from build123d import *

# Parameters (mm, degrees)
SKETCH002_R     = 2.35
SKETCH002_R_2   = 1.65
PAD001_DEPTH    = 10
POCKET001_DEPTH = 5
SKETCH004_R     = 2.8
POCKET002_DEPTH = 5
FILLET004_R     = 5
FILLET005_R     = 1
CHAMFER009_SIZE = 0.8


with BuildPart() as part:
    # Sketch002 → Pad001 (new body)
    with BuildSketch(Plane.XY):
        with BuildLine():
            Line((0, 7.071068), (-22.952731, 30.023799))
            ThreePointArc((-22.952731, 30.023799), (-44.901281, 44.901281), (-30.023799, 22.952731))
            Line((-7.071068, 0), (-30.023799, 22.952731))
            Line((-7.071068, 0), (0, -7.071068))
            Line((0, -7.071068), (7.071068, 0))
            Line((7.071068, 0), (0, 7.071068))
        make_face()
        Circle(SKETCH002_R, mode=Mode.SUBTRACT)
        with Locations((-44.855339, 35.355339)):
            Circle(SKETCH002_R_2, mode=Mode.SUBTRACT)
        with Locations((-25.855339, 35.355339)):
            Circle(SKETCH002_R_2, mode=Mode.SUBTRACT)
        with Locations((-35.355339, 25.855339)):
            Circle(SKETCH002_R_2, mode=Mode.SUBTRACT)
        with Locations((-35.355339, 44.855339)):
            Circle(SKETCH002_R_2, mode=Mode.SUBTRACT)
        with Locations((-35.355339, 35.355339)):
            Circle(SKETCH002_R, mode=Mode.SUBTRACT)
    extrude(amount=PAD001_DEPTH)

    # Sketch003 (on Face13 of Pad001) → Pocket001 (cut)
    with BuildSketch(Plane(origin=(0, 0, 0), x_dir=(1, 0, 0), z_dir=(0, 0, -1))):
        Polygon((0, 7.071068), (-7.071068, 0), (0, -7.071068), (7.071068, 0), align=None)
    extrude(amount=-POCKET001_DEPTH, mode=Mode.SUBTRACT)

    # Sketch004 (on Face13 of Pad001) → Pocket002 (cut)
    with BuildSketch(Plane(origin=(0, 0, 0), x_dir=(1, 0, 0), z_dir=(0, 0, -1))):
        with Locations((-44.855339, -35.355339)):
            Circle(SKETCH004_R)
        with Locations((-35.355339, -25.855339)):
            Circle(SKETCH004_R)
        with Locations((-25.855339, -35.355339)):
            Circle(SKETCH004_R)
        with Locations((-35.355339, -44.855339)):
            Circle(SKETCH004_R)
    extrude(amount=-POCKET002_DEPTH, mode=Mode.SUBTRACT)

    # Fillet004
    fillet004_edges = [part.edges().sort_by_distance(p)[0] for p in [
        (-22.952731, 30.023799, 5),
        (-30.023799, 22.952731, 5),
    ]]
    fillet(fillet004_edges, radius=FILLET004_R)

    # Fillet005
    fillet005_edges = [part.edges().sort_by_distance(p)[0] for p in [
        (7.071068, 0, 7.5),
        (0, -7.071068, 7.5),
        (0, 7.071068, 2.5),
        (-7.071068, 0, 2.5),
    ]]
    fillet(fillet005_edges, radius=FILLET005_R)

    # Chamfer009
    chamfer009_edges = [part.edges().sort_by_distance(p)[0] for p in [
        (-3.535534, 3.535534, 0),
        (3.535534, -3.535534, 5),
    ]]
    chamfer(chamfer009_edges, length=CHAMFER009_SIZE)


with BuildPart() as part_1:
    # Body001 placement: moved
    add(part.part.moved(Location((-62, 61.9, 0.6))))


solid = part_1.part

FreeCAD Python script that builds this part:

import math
import FreeCAD as App
import Part
import Sketcher

V = App.Vector
Q = App.Units.Quantity


def edges_at(feature, points):
    """Names of the edges that pass closest to the given points."""
    edges = feature.Shape.Edges
    near = lambda p: min(range(len(edges)), key=lambda i: edges[i].distToShape(Part.Vertex(*p))[0])
    return sorted({f"Edge{near(p) + 1}" for p in points})


def add_polygon(sketch, points):
    """Adds a closed chain of lines whose ends are joined by coincident constraints."""
    first, n = sketch.GeometryCount, len(points)
    for a, b in zip(points, points[1:] + points[:1]):
        sketch.addGeometry(Part.LineSegment(App.Vector(*a, 0), App.Vector(*b, 0)), False)
    for i in range(n):
        sketch.addConstraint(Sketcher.Constraint("Coincident", first + i, 2, first + (i + 1) % n, 1))

doc = App.newDocument("Part")
params = doc.addObject("Spreadsheet::Sheet", "Params")
for row, (alias, value) in enumerate([
    ("sketch1_diameter", "4.7 mm"),
    ("sketch1_diameter2", "3.3 mm"),
    ("sketch1_radius", "13.5 mm"),
    ("sketch1_length", "10 mm"),
    ("pad1_length", "10 mm"),
    ("sketch2_length", "10 mm"),
    ("pocket1_length", "5 mm"),
    ("sketch3_diameter", "5.6 mm"),
    ("pocket2_length", "5 mm"),
    ("fillet_radius", "5 mm"),
    ("fillet2_radius", "1 mm"),
    ("chamfer_size", "0.8 mm"),
], start=1):
    params.set(f"A{row}", alias)
    params.set(f"B{row}", "=" + value)
    params.setAlias(f"B{row}", alias)

body = doc.addObject("PartDesign::Body", "Body")

sketch1 = body.newObject("Sketcher::SketchObject", "Sketch")
sketch1.AttachmentSupport = (doc.getObject("XY_Plane"), [""])
sketch1.MapMode = "FlatFace"
sketch1.addGeometry([
    Part.ArcOfCircle(Part.Circle(V(-35.355339, 35.355339, 0), V(0, 0, 1), 13.5), math.radians(-23.261539), math.radians(293.261539)),
    Part.LineSegment(V(-30.023799, 22.952731, 0), V(0, -7.071068, 0)),
    Part.LineSegment(V(0, -7.071068, 0), V(7.071068, 0, 0)),
    Part.LineSegment(V(7.071068, 0, 0), V(-22.952731, 30.023799, 0)),
    Part.Circle(V(0, 0, 0), V(0, 0, 1), 2.35),
    Part.Circle(V(-35.355339, 25.855339, 0), V(0, 0, 1), 1.65),
    Part.Circle(V(-44.855339, 35.355339, 0), V(0, 0, 1), 1.65),
    Part.Circle(V(-35.355339, 35.355339, 0), V(0, 0, 1), 2.35),
    Part.Circle(V(-35.355339, 44.855339, 0), V(0, 0, 1), 1.65),
    Part.Circle(V(-25.855339, 35.355339, 0), V(0, 0, 1), 1.65),
], False)
sketch1.addConstraint([
    Sketcher.Constraint("Coincident", 0, 2, 1, 1),
    Sketcher.Constraint("Coincident", 1, 2, 2, 1),
    Sketcher.Constraint("Coincident", 2, 2, 3, 1),
    Sketcher.Constraint("Coincident", 3, 2, 0, 1),
    Sketcher.Constraint("Coincident", 4, 3, -1, 1),
    Sketcher.Constraint("Coincident", 7, 3, 0, 3),
    Sketcher.Constraint("Equal", 5, 6),
    Sketcher.Constraint("Equal", 4, 7),
    Sketcher.Constraint("Equal", 6, 8),
    Sketcher.Constraint("Equal", 8, 9),
    Sketcher.Constraint("PointOnObject", 1, 2, -2),
    Sketcher.Constraint("PointOnObject", 2, 2, -1),
    Sketcher.Constraint("Perpendicular", 1, 2),
    Sketcher.Constraint("Perpendicular", 2, 3),
    Sketcher.Constraint("Horizontal", 0, 3, 6, 3),
    Sketcher.Constraint("Horizontal", 7, 3, 9, 3),
    Sketcher.Constraint("Vertical", 0, 3, 5, 3),
    Sketcher.Constraint("Vertical", 7, 3, 8, 3),
    Sketcher.Constraint("Equal", 1, 3),
    Sketcher.Constraint("Diameter", 4, Q("4.7 mm")),
    Sketcher.Constraint("Diameter", 5, Q("3.3 mm")),
    Sketcher.Constraint("Radius", 0, Q("13.5 mm")),
    Sketcher.Constraint("Angle", 1, Q("-45 deg")),
    Sketcher.Constraint("Distance", 2, Q("10 mm")),
    Sketcher.Constraint("DistanceY", 5, 3, 8, 3, Q("19 mm")),
    Sketcher.Constraint("DistanceX", 6, 3, 9, 3, Q("19 mm")),
    Sketcher.Constraint("DistanceY", 5, 3, 0, 3, Q("9.5 mm")),
    Sketcher.Constraint("DistanceX", 6, 3, 0, 3, Q("9.5 mm")),
    Sketcher.Constraint("DistanceX", 0, 2, -1, 1, Q("30.023799 mm")),
])
sketch1.setExpression("Constraints[19]", "Params.sketch1_diameter")
sketch1.setExpression("Constraints[20]", "Params.sketch1_diameter2")
sketch1.setExpression("Constraints[21]", "Params.sketch1_radius")
sketch1.setExpression("Constraints[23]", "Params.sketch1_length")
pad1 = body.newObject("PartDesign::Pad", "Pad")
pad1.Profile = sketch1
pad1.setExpression("Length", "Params.pad1_length")

sketch2 = body.newObject("Sketcher::SketchObject", "Sketch001")
sketch2.AttachmentSupport = (doc.getObject("XY_Plane"), [""])
sketch2.MapMode = "FlatFace"
add_polygon(sketch2, [(0, -7.071068), (-7.071068, 0), (0, 7.071068), (7.071068, 0)])
sketch2.addConstraint([
    Sketcher.Constraint("Symmetric", 0, 2, 2, 2, -1, 1),
    Sketcher.Constraint("Symmetric", 1, 2, 3, 2, -1, 1),
    Sketcher.Constraint("PointOnObject", 0, 2, -1),
    Sketcher.Constraint("PointOnObject", 1, 2, -2),
    Sketcher.Constraint("Perpendicular", 0, 1),
    Sketcher.Constraint("Distance", 0, Q("10 mm")),
])
sketch2.setExpression("Constraints[9]", "Params.sketch2_length")
pocket1 = body.newObject("PartDesign::Pocket", "Pocket")
pocket1.Profile = sketch2
pocket1.setExpression("Length", "Params.pocket1_length")
pocket1.Reversed = True

sketch3 = body.newObject("Sketcher::SketchObject", "Sketch002")
sketch3.AttachmentSupport = (doc.getObject("XY_Plane"), [""])
sketch3.MapMode = "FlatFace"
sketch3.addGeometry([
    Part.Circle(V(-44.855339, 35.355339, 0), V(0, 0, 1), 2.8),
    Part.Circle(V(-35.355339, 25.855339, 0), V(0, 0, 1), 2.8),
    Part.Circle(V(-25.855339, 35.355339, 0), V(0, 0, 1), 2.8),
    Part.Circle(V(-35.355339, 44.855339, 0), V(0, 0, 1), 2.8),
], False)
sketch3.addConstraint([
    Sketcher.Constraint("Equal", 0, 1),
    Sketcher.Constraint("Equal", 1, 2),
    Sketcher.Constraint("Equal", 2, 3),
    Sketcher.Constraint("Horizontal", 0, 3, 2, 3),
    Sketcher.Constraint("Vertical", 1, 3, 3, 3),
    Sketcher.Constraint("Diameter", 0, Q("5.6 mm")),
    Sketcher.Constraint("DistanceX", 0, 3, 2, 3, Q("19 mm")),
    Sketcher.Constraint("DistanceY", 1, 3, 3, 3, Q("19 mm")),
    Sketcher.Constraint("DistanceX", 0, 3, 1, 3, Q("9.5 mm")),
    Sketcher.Constraint("DistanceY", 1, 3, 0, 3, Q("9.5 mm")),
    Sketcher.Constraint("DistanceX", 0, 3, -1, 1, Q("44.855339 mm")),
    Sketcher.Constraint("DistanceY", -1, 1, 0, 3, Q("35.355339 mm")),
])
sketch3.setExpression("Constraints[5]", "Params.sketch3_diameter")
pocket2 = body.newObject("PartDesign::Pocket", "Pocket001")
pocket2.Profile = sketch3
pocket2.setExpression("Length", "Params.pocket2_length")
pocket2.Reversed = True
doc.recompute()

fillet = body.newObject("PartDesign::Fillet", "Fillet")
fillet.Base = (pocket2, edges_at(pocket2, [(-22.953, 30.024, 5), (-30.024, 22.953, 5)]))
fillet.setExpression("Radius", "Params.fillet_radius")
doc.recompute()

fillet2 = body.newObject("PartDesign::Fillet", "Fillet001")
fillet2.Base = (fillet, edges_at(fillet, [
    (7.071, 0, 7.5),
    (0, -7.071, 7.5),
    (0, 7.071, 2.5),
    (-7.071, 0, 2.5),
]))
fillet2.setExpression("Radius", "Params.fillet2_radius")
doc.recompute()

chamfer = body.newObject("PartDesign::Chamfer", "Chamfer")
chamfer.Base = (fillet2, edges_at(fillet2, [(-3.536, 3.536, 0), (3.536, -3.536, 5)]))
chamfer.setExpression("Size", "Params.chamfer_size")
body2 = doc.addObject("PartDesign::Body", "Body001")
doc.recompute()

body.Placement = App.Placement(V(-62, 61.9, 0.6), App.Rotation(V(0, 0, 1), 0))
boolean = body2.newObject("PartDesign::Boolean", "Boolean")
boolean.Type = "Fuse"
boolean.addObjects([body])

doc.recompute()
